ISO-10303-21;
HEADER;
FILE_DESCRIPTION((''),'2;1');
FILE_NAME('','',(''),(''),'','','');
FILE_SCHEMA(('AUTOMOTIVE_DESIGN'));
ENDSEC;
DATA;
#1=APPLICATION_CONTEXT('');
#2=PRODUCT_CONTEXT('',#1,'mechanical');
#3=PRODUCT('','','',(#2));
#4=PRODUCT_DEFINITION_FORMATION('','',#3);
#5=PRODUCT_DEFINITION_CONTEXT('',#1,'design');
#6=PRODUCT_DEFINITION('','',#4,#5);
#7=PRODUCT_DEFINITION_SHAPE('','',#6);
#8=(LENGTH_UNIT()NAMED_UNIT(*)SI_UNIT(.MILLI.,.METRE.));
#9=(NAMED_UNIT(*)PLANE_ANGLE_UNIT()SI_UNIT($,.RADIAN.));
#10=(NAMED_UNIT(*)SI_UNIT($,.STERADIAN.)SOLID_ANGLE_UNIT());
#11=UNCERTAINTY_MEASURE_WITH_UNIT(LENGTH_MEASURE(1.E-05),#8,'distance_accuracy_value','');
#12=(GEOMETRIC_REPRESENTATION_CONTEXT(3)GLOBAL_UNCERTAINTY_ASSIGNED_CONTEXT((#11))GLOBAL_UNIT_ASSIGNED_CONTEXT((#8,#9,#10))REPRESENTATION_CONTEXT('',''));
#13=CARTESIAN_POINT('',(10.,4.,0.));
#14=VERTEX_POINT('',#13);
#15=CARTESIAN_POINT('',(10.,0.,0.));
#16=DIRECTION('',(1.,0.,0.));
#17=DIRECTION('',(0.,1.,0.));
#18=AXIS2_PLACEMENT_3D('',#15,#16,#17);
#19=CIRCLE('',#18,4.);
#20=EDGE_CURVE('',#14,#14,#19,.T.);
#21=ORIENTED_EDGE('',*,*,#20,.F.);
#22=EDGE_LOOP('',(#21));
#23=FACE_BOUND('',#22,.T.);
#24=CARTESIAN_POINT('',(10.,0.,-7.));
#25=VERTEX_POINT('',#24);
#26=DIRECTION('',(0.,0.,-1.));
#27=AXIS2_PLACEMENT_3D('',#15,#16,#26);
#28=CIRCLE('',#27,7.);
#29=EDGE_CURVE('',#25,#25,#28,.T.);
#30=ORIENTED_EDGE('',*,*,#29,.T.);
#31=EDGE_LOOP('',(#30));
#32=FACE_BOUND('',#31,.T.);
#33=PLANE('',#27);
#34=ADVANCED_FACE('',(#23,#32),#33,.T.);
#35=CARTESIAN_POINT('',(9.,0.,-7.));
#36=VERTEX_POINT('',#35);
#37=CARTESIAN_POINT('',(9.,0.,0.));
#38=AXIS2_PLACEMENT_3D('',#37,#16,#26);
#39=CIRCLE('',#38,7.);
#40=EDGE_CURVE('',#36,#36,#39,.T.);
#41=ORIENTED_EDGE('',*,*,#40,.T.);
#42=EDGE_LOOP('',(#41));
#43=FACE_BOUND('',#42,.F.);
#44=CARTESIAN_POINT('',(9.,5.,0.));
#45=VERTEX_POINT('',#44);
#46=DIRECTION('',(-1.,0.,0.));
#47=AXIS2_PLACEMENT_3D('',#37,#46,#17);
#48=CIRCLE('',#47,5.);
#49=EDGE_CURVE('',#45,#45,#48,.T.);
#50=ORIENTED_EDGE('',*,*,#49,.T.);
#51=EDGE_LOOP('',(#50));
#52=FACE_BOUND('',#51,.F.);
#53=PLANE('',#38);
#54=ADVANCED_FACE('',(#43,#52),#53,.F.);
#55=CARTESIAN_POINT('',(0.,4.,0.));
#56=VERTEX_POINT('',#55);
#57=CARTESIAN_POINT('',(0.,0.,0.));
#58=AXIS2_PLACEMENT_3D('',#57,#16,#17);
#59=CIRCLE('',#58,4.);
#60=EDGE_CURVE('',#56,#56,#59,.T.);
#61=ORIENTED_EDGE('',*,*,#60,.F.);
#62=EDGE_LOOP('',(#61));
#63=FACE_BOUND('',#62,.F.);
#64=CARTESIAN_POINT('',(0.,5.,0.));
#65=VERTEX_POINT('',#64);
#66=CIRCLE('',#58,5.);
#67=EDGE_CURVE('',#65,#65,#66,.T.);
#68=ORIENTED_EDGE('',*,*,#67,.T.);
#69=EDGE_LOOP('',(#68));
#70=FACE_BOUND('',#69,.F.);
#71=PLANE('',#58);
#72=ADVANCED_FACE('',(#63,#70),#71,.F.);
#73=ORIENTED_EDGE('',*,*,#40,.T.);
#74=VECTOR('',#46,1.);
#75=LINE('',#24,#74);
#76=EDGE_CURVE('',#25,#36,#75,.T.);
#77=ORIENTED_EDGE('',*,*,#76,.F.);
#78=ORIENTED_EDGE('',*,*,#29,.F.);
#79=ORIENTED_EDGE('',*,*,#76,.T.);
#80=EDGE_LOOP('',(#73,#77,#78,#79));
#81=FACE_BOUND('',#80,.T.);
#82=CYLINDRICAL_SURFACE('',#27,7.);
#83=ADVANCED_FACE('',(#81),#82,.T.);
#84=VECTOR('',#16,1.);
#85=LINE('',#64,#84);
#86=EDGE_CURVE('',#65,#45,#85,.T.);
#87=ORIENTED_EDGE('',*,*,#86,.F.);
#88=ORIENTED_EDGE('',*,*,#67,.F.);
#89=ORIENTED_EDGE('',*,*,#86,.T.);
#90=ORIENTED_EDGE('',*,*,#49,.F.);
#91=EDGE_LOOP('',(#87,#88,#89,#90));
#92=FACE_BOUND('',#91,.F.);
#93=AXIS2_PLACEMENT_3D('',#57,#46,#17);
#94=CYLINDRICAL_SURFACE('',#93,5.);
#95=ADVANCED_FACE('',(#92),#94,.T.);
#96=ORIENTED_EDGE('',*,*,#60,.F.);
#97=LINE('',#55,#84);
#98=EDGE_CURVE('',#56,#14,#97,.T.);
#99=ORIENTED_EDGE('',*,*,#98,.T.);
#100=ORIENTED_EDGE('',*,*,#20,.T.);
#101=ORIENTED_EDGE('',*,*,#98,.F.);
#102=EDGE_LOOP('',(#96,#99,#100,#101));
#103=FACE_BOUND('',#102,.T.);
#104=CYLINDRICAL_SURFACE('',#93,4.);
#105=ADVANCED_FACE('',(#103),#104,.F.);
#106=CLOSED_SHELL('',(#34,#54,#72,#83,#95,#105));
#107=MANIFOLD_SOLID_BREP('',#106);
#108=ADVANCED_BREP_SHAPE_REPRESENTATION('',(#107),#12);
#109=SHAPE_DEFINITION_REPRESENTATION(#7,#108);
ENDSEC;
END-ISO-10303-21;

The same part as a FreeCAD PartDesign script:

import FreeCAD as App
import Part
import Sketcher

doc = App.newDocument("Part")
body = doc.addObject("PartDesign::Body", "Body")

sketch1 = doc.addObject("Sketcher::SketchObject", "Sketch")
body.addObject(sketch1)
sketch1.AttachmentSupport = (doc.YZ_Plane, [""])
sketch1.MapMode = "FlatFace"
sketch1.addGeometry([
    Part.Circle(App.Vector(0, 0, 0), App.Vector(0, 0, 1), 5),
    Part.Circle(App.Vector(0, 0, 0), App.Vector(0, 0, 1), 4),
], False)
sketch1.addConstraint([
    Sketcher.Constraint("Coincident", 0, 3, -1, 1),
    Sketcher.Constraint("Coincident", 1, 3, -1, 1),
    Sketcher.Constraint("Diameter", 0, 10.0),
    Sketcher.Constraint("Diameter", 1, 8.0),
])
pad1 = doc.addObject("PartDesign::Pad", "Pad")
body.addObject(pad1)
pad1.Profile = sketch1
pad1.Length = 10

sketch2 = doc.addObject("Sketcher::SketchObject", "Sketch001")
body.addObject(sketch2)
sketch2.AttachmentSupport = (doc.YZ_Plane, [""])
sketch2.MapMode = "FlatFace"
sketch2.AttachmentOffset = App.Placement(App.Vector(0, 0, 10), App.Rotation())
sketch2.addGeometry([
    Part.Circle(App.Vector(0, 0, 0), App.Vector(0, 0, 1), 7),
    Part.Circle(App.Vector(0, 0, 0), App.Vector(0, 0, 1), 4),
], False)
sketch2.addConstraint([
    Sketcher.Constraint("Coincident", 0, 3, -1, 1),
    Sketcher.Constraint("Coincident", 1, 3, -1, 1),
    Sketcher.Constraint("Diameter", 0, 14.0),
    Sketcher.Constraint("Diameter", 1, 8.0),
])
pad2 = doc.addObject("PartDesign::Pad", "Pad001")
body.addObject(pad2)
pad2.Profile = sketch2
pad2.Length = 1
pad2.Reversed = True

doc.recompute()
